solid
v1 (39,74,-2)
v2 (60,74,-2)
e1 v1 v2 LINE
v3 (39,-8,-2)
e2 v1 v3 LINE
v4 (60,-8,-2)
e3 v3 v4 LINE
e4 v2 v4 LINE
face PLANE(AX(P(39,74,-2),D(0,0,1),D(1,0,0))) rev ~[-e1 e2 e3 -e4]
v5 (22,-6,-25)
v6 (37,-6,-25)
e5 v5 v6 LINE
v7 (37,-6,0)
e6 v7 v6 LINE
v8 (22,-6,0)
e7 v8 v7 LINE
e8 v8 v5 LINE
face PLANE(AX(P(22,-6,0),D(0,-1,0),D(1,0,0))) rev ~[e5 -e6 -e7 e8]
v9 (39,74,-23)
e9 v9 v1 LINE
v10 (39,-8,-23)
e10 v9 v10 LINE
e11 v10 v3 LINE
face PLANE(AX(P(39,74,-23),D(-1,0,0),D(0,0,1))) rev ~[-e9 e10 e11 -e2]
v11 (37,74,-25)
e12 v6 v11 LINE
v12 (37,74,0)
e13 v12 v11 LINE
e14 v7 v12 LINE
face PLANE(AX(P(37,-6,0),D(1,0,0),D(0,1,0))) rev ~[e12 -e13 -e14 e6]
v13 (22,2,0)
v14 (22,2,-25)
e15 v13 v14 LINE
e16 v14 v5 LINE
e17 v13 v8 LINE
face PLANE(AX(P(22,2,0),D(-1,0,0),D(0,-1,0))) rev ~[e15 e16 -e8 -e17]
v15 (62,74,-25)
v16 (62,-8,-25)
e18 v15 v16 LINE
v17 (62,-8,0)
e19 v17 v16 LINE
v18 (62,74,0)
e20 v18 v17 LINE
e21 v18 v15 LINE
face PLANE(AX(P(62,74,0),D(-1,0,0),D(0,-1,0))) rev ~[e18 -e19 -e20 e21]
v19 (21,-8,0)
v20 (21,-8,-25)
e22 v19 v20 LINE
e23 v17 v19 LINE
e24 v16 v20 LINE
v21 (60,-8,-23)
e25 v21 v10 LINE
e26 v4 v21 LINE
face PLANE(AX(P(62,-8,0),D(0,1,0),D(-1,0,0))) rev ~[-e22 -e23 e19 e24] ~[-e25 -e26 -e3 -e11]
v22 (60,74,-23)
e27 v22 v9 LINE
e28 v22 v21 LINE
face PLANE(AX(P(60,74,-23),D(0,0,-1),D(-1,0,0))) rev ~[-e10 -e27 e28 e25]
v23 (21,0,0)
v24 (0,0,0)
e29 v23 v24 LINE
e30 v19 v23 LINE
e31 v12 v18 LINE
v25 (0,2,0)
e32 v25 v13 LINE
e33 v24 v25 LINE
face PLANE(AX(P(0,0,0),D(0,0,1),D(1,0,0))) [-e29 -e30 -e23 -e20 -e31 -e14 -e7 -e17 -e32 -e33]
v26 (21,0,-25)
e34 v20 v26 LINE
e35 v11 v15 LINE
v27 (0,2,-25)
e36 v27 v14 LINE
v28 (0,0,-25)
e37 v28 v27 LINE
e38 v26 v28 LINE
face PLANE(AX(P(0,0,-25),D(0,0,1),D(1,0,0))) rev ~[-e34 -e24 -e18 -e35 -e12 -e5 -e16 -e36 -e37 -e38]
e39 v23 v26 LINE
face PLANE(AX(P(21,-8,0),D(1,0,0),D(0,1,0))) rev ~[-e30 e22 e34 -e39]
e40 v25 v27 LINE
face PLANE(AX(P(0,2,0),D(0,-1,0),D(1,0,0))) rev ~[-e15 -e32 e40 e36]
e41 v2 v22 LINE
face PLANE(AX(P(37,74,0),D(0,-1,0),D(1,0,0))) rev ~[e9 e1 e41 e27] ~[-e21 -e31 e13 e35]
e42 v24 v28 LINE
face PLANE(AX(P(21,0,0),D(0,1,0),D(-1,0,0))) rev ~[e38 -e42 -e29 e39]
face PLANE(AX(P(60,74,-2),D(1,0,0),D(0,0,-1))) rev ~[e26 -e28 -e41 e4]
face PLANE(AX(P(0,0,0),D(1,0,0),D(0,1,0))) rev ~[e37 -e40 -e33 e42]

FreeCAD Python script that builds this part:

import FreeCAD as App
import Part
import Sketcher
Q = App.Units.Quantity

doc = App.newDocument("Part")
body = doc.addObject("PartDesign::Body", "Body")

# Sketch on XY plane
sketch1 = body.newObject("Sketcher::SketchObject", "Sketch")
sketch1.AttachmentSupport = (doc.getObject("XY_Plane"), [""])
sketch1.MapMode = "FlatFace"
sketch1.addGeometry([
    Part.LineSegment(App.Vector(0, 2, 0), App.Vector(0, 0, 0)),  # 0
    Part.LineSegment(App.Vector(0, 0, 0), App.Vector(21, 0, 0)),  # 1
    Part.LineSegment(App.Vector(21, 0, 0), App.Vector(21, -8, 0)),  # 2
    Part.LineSegment(App.Vector(21, -8, 0), App.Vector(62, -8, 0)),  # 3
    Part.LineSegment(App.Vector(62, -8, 0), App.Vector(62, 74, 0)),  # 4
    Part.LineSegment(App.Vector(62, 74, 0), App.Vector(37, 74, 0)),  # 5
    Part.LineSegment(App.Vector(37, 74, 0), App.Vector(37, -6, 0)),  # 6
    Part.LineSegment(App.Vector(37, -6, 0), App.Vector(22, -6, 0)),  # 7
    Part.LineSegment(App.Vector(22, -6, 0), App.Vector(22, 2, 0)),  # 8
    Part.LineSegment(App.Vector(22, 2, 0), App.Vector(0, 2, 0)),  # 9
], False)
sketch1.addConstraint([
    Sketcher.Constraint("Coincident", 0, 2, 1, 1),
    Sketcher.Constraint("Coincident", 1, 2, 2, 1),
    Sketcher.Constraint("Coincident", 2, 2, 3, 1),
    Sketcher.Constraint("Coincident", 3, 2, 4, 1),
    Sketcher.Constraint("Coincident", 4, 2, 5, 1),
    Sketcher.Constraint("Coincident", 5, 2, 6, 1),
    Sketcher.Constraint("Coincident", 6, 2, 7, 1),
    Sketcher.Constraint("Coincident", 7, 2, 8, 1),
    Sketcher.Constraint("Coincident", 8, 2, 9, 1),
    Sketcher.Constraint("Coincident", 9, 2, 0, 1),
    Sketcher.Constraint("Vertical", 0),
    Sketcher.Constraint("Horizontal", 1),
    Sketcher.Constraint("Vertical", 2),
    Sketcher.Constraint("Horizontal", 3),
    Sketcher.Constraint("Vertical", 4),
    Sketcher.Constraint("Horizontal", 5),
    Sketcher.Constraint("Vertical", 6),
    Sketcher.Constraint("Horizontal", 7),
    Sketcher.Constraint("Vertical", 8),
    Sketcher.Constraint("Horizontal", 9),
    Sketcher.Constraint("Coincident", 0, 2, -1, 1),
    Sketcher.Constraint("Equal", 2, 8),
    Sketcher.Constraint("DistanceX", 3, 1, 3, 2, Q("41 mm")),
    Sketcher.Constraint("DistanceX", 5, 2, 5, 1, Q("25 mm")),
    Sketcher.Constraint("DistanceX", 7, 2, 7, 1, Q("15 mm")),
    Sketcher.Constraint("DistanceX", 9, 2, 9, 1, Q("22 mm")),
    Sketcher.Constraint("DistanceY", 0, 2, 0, 1, Q("2 mm")),
    Sketcher.Constraint("DistanceY", 2, 2, 2, 1, Q("8 mm")),
    Sketcher.Constraint("DistanceY", 4, 1, 4, 2, Q("82 mm")),
])
pad1 = body.newObject("PartDesign::Pad", "Pad")
pad1.Profile = sketch1
pad1.Length = 25
pad1.Reversed = True

# Sketch on XZ plane
sketch2 = body.newObject("Sketcher::SketchObject", "Sketch001")
sketch2.AttachmentSupport = (doc.getObject("XZ_Plane"), [""])
sketch2.MapMode = "FlatFace"
sketch2.AttachmentOffset = App.Placement(App.Vector(0, 0, -74), App.Rotation())
sketch2.addGeometry([
    Part.LineSegment(App.Vector(39, -23, 0), App.Vector(39, -2, 0)),
    Part.LineSegment(App.Vector(39, -2, 0), App.Vector(60, -2, 0)),
    Part.LineSegment(App.Vector(60, -2, 0), App.Vector(60, -23, 0)),
    Part.LineSegment(App.Vector(60, -23, 0), App.Vector(39, -23, 0)),
], False)
sketch2.addConstraint([
    Sketcher.Constraint("Coincident", 0, 2, 1, 1),
    Sketcher.Constraint("Coincident", 1, 2, 2, 1),
    Sketcher.Constraint("Coincident", 2, 2, 3, 1),
    Sketcher.Constraint("Coincident", 3, 2, 0, 1),
    Sketcher.Constraint("Vertical", 0),
    Sketcher.Constraint("Horizontal", 1),
    Sketcher.Constraint("Vertical", 2),
    Sketcher.Constraint("Horizontal", 3),
    Sketcher.Constraint("Equal", 3, 0),
    Sketcher.Constraint("DistanceX", 1, 1, 1, 2, Q("21 mm")),
    Sketcher.Constraint("DistanceX", -1, 1, 0, 2, Q("39 mm")),
    Sketcher.Constraint("DistanceY", 0, 2, -1, 1, Q("2 mm")),
])
pocket1 = body.newObject("PartDesign::Pocket", "Pocket")
pocket1.Profile = sketch2
pocket1.Length = 100
pocket1.Reversed = True

doc.recompute()
